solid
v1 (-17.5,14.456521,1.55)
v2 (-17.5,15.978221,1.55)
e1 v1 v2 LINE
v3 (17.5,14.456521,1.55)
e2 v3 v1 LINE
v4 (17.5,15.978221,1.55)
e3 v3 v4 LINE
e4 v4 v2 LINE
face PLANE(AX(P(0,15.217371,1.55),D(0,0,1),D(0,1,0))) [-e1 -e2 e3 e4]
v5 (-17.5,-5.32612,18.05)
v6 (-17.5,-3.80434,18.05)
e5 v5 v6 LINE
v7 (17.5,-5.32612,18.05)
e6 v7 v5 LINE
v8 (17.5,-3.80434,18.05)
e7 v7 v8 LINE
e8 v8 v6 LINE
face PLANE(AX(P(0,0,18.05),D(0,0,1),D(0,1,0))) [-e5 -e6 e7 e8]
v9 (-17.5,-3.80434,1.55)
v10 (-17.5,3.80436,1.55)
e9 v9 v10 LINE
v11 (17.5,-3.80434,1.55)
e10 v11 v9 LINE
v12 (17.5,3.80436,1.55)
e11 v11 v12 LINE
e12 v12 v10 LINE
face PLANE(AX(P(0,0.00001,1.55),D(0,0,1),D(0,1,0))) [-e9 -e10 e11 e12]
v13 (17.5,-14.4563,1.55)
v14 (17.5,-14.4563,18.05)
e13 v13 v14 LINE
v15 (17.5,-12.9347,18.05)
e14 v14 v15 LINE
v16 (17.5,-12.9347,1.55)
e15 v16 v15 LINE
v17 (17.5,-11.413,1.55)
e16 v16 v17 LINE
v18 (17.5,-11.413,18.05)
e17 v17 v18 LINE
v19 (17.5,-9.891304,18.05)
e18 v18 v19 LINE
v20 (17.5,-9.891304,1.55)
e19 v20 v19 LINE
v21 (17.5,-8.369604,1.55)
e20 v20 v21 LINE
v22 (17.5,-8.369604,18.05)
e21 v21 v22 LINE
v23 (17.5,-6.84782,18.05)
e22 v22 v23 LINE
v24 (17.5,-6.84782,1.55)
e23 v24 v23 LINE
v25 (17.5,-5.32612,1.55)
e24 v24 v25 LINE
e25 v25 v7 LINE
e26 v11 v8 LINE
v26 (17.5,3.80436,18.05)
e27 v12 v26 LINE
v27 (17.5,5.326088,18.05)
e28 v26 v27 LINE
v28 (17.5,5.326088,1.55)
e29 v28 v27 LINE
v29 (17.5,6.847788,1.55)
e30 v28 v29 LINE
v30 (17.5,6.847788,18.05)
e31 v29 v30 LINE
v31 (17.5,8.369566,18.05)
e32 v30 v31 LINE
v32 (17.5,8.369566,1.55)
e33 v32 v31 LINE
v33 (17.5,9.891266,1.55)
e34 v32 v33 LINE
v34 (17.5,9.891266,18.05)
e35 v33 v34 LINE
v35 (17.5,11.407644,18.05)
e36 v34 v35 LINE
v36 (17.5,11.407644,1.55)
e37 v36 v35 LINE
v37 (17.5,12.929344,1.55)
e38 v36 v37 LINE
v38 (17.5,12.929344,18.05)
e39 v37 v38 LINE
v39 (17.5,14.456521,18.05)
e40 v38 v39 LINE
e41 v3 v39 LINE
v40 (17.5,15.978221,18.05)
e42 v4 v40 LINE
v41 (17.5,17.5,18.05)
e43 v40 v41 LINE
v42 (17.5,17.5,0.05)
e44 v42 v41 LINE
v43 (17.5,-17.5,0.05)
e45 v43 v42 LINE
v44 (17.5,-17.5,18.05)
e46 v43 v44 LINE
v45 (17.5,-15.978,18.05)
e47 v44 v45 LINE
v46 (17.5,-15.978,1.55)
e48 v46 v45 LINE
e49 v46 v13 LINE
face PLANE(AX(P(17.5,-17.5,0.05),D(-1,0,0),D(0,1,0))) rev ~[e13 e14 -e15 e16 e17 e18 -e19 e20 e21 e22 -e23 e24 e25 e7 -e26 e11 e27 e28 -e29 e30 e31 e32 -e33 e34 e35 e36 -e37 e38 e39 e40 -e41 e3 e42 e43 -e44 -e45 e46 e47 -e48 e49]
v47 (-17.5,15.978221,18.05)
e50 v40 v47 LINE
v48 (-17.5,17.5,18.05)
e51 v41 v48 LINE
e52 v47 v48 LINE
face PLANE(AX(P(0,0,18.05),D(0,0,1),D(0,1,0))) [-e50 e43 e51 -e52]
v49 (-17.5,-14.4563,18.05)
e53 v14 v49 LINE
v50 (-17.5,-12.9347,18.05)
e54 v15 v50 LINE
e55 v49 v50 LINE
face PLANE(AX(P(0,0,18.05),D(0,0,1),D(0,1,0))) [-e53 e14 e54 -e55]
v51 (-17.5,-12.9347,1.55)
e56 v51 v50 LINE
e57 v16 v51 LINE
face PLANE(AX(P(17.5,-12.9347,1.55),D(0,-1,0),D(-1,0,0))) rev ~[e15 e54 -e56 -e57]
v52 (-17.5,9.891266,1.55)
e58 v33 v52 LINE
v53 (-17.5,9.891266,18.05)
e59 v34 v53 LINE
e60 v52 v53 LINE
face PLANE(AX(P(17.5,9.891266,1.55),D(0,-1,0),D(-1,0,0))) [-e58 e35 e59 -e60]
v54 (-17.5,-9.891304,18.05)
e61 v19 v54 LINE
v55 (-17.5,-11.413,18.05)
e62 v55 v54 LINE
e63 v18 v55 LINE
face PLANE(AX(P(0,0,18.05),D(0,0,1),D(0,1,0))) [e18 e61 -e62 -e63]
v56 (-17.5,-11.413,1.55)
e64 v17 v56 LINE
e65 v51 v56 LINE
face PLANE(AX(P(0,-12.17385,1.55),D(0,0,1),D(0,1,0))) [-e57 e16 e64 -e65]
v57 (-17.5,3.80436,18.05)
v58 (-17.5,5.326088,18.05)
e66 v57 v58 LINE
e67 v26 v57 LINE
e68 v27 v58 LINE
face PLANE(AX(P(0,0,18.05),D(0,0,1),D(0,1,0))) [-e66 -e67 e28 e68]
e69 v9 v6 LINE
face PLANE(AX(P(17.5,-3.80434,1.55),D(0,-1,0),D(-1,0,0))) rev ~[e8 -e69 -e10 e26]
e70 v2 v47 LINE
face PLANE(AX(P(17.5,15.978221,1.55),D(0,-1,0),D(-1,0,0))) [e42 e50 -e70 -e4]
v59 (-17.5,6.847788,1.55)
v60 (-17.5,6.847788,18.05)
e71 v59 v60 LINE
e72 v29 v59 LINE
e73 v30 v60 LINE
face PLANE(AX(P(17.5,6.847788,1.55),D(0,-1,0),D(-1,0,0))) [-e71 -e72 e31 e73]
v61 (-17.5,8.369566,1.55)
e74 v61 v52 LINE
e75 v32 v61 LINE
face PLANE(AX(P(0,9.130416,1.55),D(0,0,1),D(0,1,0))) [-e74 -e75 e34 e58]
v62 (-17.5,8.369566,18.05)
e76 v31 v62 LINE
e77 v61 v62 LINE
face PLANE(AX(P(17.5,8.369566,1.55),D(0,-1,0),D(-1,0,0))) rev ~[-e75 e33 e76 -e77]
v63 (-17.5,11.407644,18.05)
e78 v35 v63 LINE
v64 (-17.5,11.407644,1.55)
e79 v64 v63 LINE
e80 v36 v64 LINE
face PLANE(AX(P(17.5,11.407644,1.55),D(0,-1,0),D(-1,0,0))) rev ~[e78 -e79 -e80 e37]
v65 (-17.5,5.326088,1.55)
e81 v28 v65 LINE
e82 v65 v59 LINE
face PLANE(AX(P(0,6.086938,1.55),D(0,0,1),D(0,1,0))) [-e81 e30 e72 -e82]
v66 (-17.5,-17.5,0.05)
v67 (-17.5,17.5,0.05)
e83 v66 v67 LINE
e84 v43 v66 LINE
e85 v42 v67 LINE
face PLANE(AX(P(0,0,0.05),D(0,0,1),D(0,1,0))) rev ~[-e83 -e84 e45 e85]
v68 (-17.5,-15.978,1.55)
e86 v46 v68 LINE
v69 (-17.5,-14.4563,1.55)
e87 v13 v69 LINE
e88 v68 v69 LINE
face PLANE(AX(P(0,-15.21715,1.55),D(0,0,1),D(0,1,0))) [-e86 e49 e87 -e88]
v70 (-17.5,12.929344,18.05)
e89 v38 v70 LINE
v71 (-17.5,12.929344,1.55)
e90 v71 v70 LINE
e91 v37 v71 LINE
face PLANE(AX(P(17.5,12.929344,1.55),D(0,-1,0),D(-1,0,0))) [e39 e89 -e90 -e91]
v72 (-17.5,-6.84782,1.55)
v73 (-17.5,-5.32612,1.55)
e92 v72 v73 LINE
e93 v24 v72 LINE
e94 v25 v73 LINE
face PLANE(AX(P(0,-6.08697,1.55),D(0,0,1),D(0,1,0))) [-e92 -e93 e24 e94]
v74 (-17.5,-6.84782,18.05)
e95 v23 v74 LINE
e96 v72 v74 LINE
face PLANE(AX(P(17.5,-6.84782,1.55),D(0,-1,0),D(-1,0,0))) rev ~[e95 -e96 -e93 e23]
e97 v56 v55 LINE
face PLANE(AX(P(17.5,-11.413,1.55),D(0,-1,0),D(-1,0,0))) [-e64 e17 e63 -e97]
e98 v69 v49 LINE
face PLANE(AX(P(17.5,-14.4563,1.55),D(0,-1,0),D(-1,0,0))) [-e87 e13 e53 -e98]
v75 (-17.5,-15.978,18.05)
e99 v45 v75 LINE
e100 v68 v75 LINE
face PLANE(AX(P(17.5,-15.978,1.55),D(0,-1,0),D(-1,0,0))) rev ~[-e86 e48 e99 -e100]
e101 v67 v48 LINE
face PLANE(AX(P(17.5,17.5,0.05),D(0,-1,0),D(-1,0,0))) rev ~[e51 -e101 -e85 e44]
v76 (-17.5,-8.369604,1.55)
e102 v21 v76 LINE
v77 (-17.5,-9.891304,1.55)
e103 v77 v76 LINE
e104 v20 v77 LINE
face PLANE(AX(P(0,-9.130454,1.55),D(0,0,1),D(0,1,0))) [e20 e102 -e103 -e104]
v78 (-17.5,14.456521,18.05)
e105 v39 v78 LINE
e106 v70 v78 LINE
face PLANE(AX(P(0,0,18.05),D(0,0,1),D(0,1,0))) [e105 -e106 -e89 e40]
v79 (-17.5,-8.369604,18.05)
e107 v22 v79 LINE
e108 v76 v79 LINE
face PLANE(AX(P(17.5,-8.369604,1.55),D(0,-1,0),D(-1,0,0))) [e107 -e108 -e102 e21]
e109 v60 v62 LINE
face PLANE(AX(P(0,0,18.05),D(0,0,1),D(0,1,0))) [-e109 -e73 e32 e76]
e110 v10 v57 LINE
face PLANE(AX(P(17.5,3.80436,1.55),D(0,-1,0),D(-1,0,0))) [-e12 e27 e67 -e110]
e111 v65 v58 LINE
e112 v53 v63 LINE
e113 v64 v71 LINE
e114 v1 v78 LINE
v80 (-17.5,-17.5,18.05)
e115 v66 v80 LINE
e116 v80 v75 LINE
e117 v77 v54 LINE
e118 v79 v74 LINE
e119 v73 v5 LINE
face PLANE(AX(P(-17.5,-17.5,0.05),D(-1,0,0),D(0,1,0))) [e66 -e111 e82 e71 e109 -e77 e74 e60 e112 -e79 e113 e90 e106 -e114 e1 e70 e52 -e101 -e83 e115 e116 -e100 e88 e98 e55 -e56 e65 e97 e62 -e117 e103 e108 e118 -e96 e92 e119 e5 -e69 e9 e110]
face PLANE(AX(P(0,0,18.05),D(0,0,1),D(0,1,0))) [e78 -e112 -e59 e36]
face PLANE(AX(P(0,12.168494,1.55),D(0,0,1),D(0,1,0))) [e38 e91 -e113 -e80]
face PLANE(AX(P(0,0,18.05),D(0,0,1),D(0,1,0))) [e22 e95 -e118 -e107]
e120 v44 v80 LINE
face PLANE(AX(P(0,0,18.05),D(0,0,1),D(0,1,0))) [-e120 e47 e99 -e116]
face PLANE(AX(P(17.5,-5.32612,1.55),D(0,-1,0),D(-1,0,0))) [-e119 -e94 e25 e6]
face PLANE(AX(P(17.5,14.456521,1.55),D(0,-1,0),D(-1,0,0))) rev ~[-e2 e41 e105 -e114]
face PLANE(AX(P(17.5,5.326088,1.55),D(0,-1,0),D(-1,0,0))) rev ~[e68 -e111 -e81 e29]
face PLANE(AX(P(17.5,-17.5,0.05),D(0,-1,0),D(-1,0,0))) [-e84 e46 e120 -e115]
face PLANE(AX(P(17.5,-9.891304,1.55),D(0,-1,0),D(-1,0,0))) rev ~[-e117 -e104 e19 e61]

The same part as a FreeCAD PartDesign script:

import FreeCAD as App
import Part
import Sketcher

V = App.Vector


def add_polygon(sketch, points):
    """Adds a closed chain of lines whose ends are joined by coincident constraints."""
    first, n = sketch.GeometryCount, len(points)
    for a, b in zip(points, points[1:] + points[:1]):
        sketch.addGeometry(Part.LineSegment(App.Vector(*a, 0), App.Vector(*b, 0)), False)
    for i in range(n):
        sketch.addConstraint(Sketcher.Constraint("Coincident", first + i, 2, first + (i + 1) % n, 1))

doc = App.newDocument("Part")
body = doc.addObject("PartDesign::Body", "Body")

# Sketch on XY plane
sketch1 = doc.addObject("Sketcher::SketchObject", "Sketch")
body.addObject(sketch1)
sketch1.AttachmentSupport = (doc.XY_Plane, [""])
sketch1.MapMode = "FlatFace"
add_polygon(sketch1, [(-18, 18), (-18, -18), (18, -18), (18, 18)])  # lines 0-3
sketch1.addConstraint(Sketcher.Constraint("Vertical", 0))
sketch1.addConstraint(Sketcher.Constraint("Horizontal", 1))
sketch1.addConstraint(Sketcher.Constraint("Vertical", 2))
sketch1.addConstraint(Sketcher.Constraint("Horizontal", 3))
sketch1.addConstraint(Sketcher.Constraint("Symmetric", 0, 2, 2, 2, -1, 1))
sketch1.addConstraint(Sketcher.Constraint("Equal", 3, 0))
sketch1.addConstraint(Sketcher.Constraint("DistanceX", 1, 1, 1, 2, 35.0))
pad1 = doc.addObject("PartDesign::Pad", "Pad")
body.addObject(pad1)
pad1.Profile = sketch1
pad1.Length = 18

# Sketch on XY plane
sketch2 = doc.addObject("Sketcher::SketchObject", "Sketch001")
body.addObject(sketch2)
sketch2.AttachmentSupport = (doc.XY_Plane, [""])
sketch2.MapMode = "FlatFace"
sketch2.AttachmentOffset = App.Placement(V(0, 0, 1.5), App.Rotation())
add_polygon(sketch2, [(-16, 17.5), (-16, -17.5), (-14.5, -17.5), (-14.5, 17.5)])  # lines 0-3
sketch2.addConstraint(Sketcher.Constraint("Vertical", 0))
sketch2.addConstraint(Sketcher.Constraint("Horizontal", 1))
sketch2.addConstraint(Sketcher.Constraint("Vertical", 2))
sketch2.addConstraint(Sketcher.Constraint("Horizontal", 3))
sketch2.addConstraint(Sketcher.Constraint("DistanceY", 0, 2, 0, 1, 35.0))
sketch2.addConstraint(Sketcher.Constraint("DistanceY", 0, 2, -1, 1, 17.5))
sketch2.addConstraint(Sketcher.Constraint("DistanceX", 1, 1, 1, 2, 1.5217))
sketch2.addConstraint(Sketcher.Constraint("DistanceX", 0, 2, -1, 1, 15.978))
pocket1 = doc.addObject("PartDesign::Pocket", "Pocket")
body.addObject(pocket1)
pocket1.Profile = sketch2
pocket1.Length = 16.5
pocket1.Reversed = True

# Sketch on XY plane
sketch3 = doc.addObject("Sketcher::SketchObject", "Sketch002")
body.addObject(sketch3)
sketch3.AttachmentSupport = (doc.XY_Plane, [""])
sketch3.MapMode = "FlatFace"
sketch3.AttachmentOffset = App.Placement(V(0, 0, 1.5), App.Rotation())
add_polygon(sketch3, [(-12.9, 17.5), (-12.9, -17.5), (-11.4, -17.5), (-11.4, 17.5)])  # lines 0-3
sketch3.addConstraint(Sketcher.Constraint("Vertical", 0))
sketch3.addConstraint(Sketcher.Constraint("Horizontal", 1))
sketch3.addConstraint(Sketcher.Constraint("Vertical", 2))
sketch3.addConstraint(Sketcher.Constraint("Horizontal", 3))
sketch3.addConstraint(Sketcher.Constraint("DistanceY", 0, 2, 0, 1, 35.0))
sketch3.addConstraint(Sketcher.Constraint("DistanceY", 0, 2, -1, 1, 17.5))
sketch3.addConstraint(Sketcher.Constraint("DistanceX", 1, 1, 1, 2, 1.5217))
sketch3.addConstraint(Sketcher.Constraint("DistanceX", 1, 2, -1, 1, 11.413))
pocket2 = doc.addObject("PartDesign::Pocket", "Pocket001")
body.addObject(pocket2)
pocket2.Profile = sketch3
pocket2.Length = 16.5
pocket2.Reversed = True

# Sketch on XY plane
sketch4 = doc.addObject("Sketcher::SketchObject", "Sketch003")
body.addObject(sketch4)
sketch4.AttachmentSupport = (doc.XY_Plane, [""])
sketch4.MapMode = "FlatFace"
sketch4.AttachmentOffset = App.Placement(V(0, 0, 1.5), App.Rotation())
add_polygon(sketch4, [(-9.9, 17.5), (-9.9, -17.5), (-8.4, -17.5), (-8.4, 17.5)])  # lines 0-3
sketch4.addConstraint(Sketcher.Constraint("Vertical", 0))
sketch4.addConstraint(Sketcher.Constraint("Horizontal", 1))
sketch4.addConstraint(Sketcher.Constraint("Vertical", 2))
sketch4.addConstraint(Sketcher.Constraint("Horizontal", 3))
sketch4.addConstraint(Sketcher.Constraint("DistanceY", 0, 2, 0, 1, 35.0))
sketch4.addConstraint(Sketcher.Constraint("DistanceY", 0, 2, -1, 1, 17.5))
sketch4.addConstraint(Sketcher.Constraint("DistanceX", 1, 1, 1, 2, 1.5217))
sketch4.addConstraint(Sketcher.Constraint("DistanceX", 0, 2, -1, 1, 9.891304))
pocket3 = doc.addObject("PartDesign::Pocket", "Pocket002")
body.addObject(pocket3)
pocket3.Profile = sketch4
pocket3.Length = 16.5
pocket3.Reversed = True

# Sketch on XY plane
sketch5 = doc.addObject("Sketcher::SketchObject", "Sketch004")
body.addObject(sketch5)
sketch5.AttachmentSupport = (doc.XY_Plane, [""])
sketch5.MapMode = "FlatFace"
sketch5.AttachmentOffset = App.Placement(V(0, 0, 1.5), App.Rotation())
add_polygon(sketch5, [(-6.8, 17.5), (-6.8, -17.5), (-5.3, -17.5), (-5.3, 17.5)])  # lines 0-3
sketch5.addConstraint(Sketcher.Constraint("Vertical", 0))
sketch5.addConstraint(Sketcher.Constraint("Horizontal", 1))
sketch5.addConstraint(Sketcher.Constraint("Vertical", 2))
sketch5.addConstraint(Sketcher.Constraint("Horizontal", 3))
sketch5.addConstraint(Sketcher.Constraint("DistanceY", 0, 2, 0, 1, 35.0))
sketch5.addConstraint(Sketcher.Constraint("DistanceY", 0, 2, -1, 1, 17.5))
sketch5.addConstraint(Sketcher.Constraint("DistanceX", 1, 1, 1, 2, 1.5217))
sketch5.addConstraint(Sketcher.Constraint("DistanceX", 0, 2, -1, 1, 6.84782))
pocket4 = doc.addObject("PartDesign::Pocket", "Pocket003")
body.addObject(pocket4)
pocket4.Profile = sketch5
pocket4.Length = 16.5
pocket4.Reversed = True

# Sketch on XY plane
sketch6 = doc.addObject("Sketcher::SketchObject", "Sketch005")
body.addObject(sketch6)
sketch6.AttachmentSupport = (doc.XY_Plane, [""])
sketch6.MapMode = "FlatFace"
sketch6.AttachmentOffset = App.Placement(V(0, 0, 1.5), App.Rotation())
add_polygon(sketch6, [(-4, 18), (-4, -18), (4, -18), (4, 18)])  # lines 0-3
sketch6.addConstraint(Sketcher.Constraint("Vertical", 0))
sketch6.addConstraint(Sketcher.Constraint("Horizontal", 1))
sketch6.addConstraint(Sketcher.Constraint("Vertical", 2))
sketch6.addConstraint(Sketcher.Constraint("Horizontal", 3))
sketch6.addConstraint(Sketcher.Constraint("DistanceY", 0, 2, 0, 1, 35.0))
sketch6.addConstraint(Sketcher.Constraint("DistanceY", 0, 2, -1, 1, 17.5))
sketch6.addConstraint(Sketcher.Constraint("DistanceX", 1, 1, 1, 2, 7.6087))
sketch6.addConstraint(Sketcher.Constraint("DistanceX", 0, 2, -1, 1, 3.80434))
pocket5 = doc.addObject("PartDesign::Pocket", "Pocket004")
body.addObject(pocket5)
pocket5.Profile = sketch6
pocket5.Length = 16.5
pocket5.Reversed = True

# Sketch on XY plane
sketch7 = doc.addObject("Sketcher::SketchObject", "Sketch006")
body.addObject(sketch7)
sketch7.AttachmentSupport = (doc.XY_Plane, [""])
sketch7.MapMode = "FlatFace"
sketch7.AttachmentOffset = App.Placement(V(0, 0, 1.5), App.Rotation())
add_polygon(sketch7, [(5.3, 17.5), (5.3, -17.5), (6.8, -17.5), (6.8, 17.5)])  # lines 0-3
sketch7.addConstraint(Sketcher.Constraint("Vertical", 0))
sketch7.addConstraint(Sketcher.Constraint("Horizontal", 1))
sketch7.addConstraint(Sketcher.Constraint("Vertical", 2))
sketch7.addConstraint(Sketcher.Constraint("Horizontal", 3))
sketch7.addConstraint(Sketcher.Constraint("DistanceY", 0, 2, 0, 1, 35.0))
sketch7.addConstraint(Sketcher.Constraint("DistanceY", 0, 2, -1, 1, 17.5))
sketch7.addConstraint(Sketcher.Constraint("DistanceX", 1, 1, 1, 2, 1.5217))
sketch7.addConstraint(Sketcher.Constraint("DistanceX", -1, 1, 0, 2, 5.326088))
pocket6 = doc.addObject("PartDesign::Pocket", "Pocket005")
body.addObject(pocket6)
pocket6.Profile = sketch7
pocket6.Length = 16.5
pocket6.Reversed = True

# Sketch on XY plane
sketch8 = doc.addObject("Sketcher::SketchObject", "Sketch007")
body.addObject(sketch8)
sketch8.AttachmentSupport = (doc.XY_Plane, [""])
sketch8.MapMode = "FlatFace"
sketch8.AttachmentOffset = App.Placement(V(0, 0, 1.5), App.Rotation())
add_polygon(sketch8, [(8.4, 17.5), (8.4, -17.5), (9.9, -17.5), (9.9, 17.5)])  # lines 0-3
sketch8.addConstraint(Sketcher.Constraint("Vertical", 0))
sketch8.addConstraint(Sketcher.Constraint("Horizontal", 1))
sketch8.addConstraint(Sketcher.Constraint("Vertical", 2))
sketch8.addConstraint(Sketcher.Constraint("Horizontal", 3))
sketch8.addConstraint(Sketcher.Constraint("DistanceY", 0, 2, 0, 1, 35.0))
sketch8.addConstraint(Sketcher.Constraint("DistanceY", 0, 2, -1, 1, 17.5))
sketch8.addConstraint(Sketcher.Constraint("DistanceX", 1, 1, 1, 2, 1.5217))
sketch8.addConstraint(Sketcher.Constraint("DistanceX", -1, 1, 0, 2, 8.369566))
pocket7 = doc.addObject("PartDesign::Pocket", "Pocket006")
body.addObject(pocket7)
pocket7.Profile = sketch8
pocket7.Length = 16.5
pocket7.Reversed = True

# Sketch on XY plane
sketch9 = doc.addObject("Sketcher::SketchObject", "Sketch008")
body.addObject(sketch9)
sketch9.AttachmentSupport = (doc.XY_Plane, [""])
sketch9.MapMode = "FlatFace"
sketch9.AttachmentOffset = App.Placement(V(0, 0, 1.5), App.Rotation())
add_polygon(sketch9, [(11.4, 17.5), (11.4, -17.5), (12.9, -17.5), (12.9, 17.5)])  # lines 0-3
sketch9.addConstraint(Sketcher.Constraint("Vertical", 0))
sketch9.addConstraint(Sketcher.Constraint("Horizontal", 1))
sketch9.addConstraint(Sketcher.Constraint("Vertical", 2))
sketch9.addConstraint(Sketcher.Constraint("Horizontal", 3))
sketch9.addConstraint(Sketcher.Constraint("DistanceY", 0, 2, 0, 1, 35.0))
sketch9.addConstraint(Sketcher.Constraint("DistanceY", 0, 2, -1, 1, 17.5))
sketch9.addConstraint(Sketcher.Constraint("DistanceX", 1, 1, 1, 2, 1.5217))
sketch9.addConstraint(Sketcher.Constraint("DistanceX", -1, 1, 0, 2, 11.407644))
pocket8 = doc.addObject("PartDesign::Pocket", "Pocket007")
body.addObject(pocket8)
pocket8.Profile = sketch9
pocket8.Length = 16.5
pocket8.Reversed = True

# Sketch on XY plane
sketch10 = doc.addObject("Sketcher::SketchObject", "Sketch009")
body.addObject(sketch10)
sketch10.AttachmentSupport = (doc.XY_Plane, [""])
sketch10.MapMode = "FlatFace"
sketch10.AttachmentOffset = App.Placement(V(0, 0, 1.5), App.Rotation())
add_polygon(sketch10, [(14.5, 17.5), (14.5, -17.5), (16, -17.5), (16, 17.5)])  # lines 0-3
sketch10.addConstraint(Sketcher.Constraint("Vertical", 0))
sketch10.addConstraint(Sketcher.Constraint("Horizontal", 1))
sketch10.addConstraint(Sketcher.Constraint("Vertical", 2))
sketch10.addConstraint(Sketcher.Constraint("Horizontal", 3))
sketch10.addConstraint(Sketcher.Constraint("DistanceY", 0, 2, 0, 1, 35.0))
sketch10.addConstraint(Sketcher.Constraint("DistanceY", 0, 2, -1, 1, 17.5))
sketch10.addConstraint(Sketcher.Constraint("DistanceX", 1, 1, 1, 2, 1.5217))
sketch10.addConstraint(Sketcher.Constraint("DistanceX", -1, 1, 0, 2, 14.456521))
pocket9 = doc.addObject("PartDesign::Pocket", "Pocket008")
body.addObject(pocket9)
pocket9.Profile = sketch10
pocket9.Length = 16.5
pocket9.Reversed = True
body2 = doc.addObject("PartDesign::Body", "Body001")
doc.recompute()

body.Placement = App.Placement(V(0, 0, 0.05), App.Rotation(V(0, 0, 1), 90))
boolean = doc.addObject("PartDesign::Boolean", "Boolean")
body2.addObject(boolean)
boolean.Type = "Fuse"
boolean.addObjects([body])

doc.recompute()
